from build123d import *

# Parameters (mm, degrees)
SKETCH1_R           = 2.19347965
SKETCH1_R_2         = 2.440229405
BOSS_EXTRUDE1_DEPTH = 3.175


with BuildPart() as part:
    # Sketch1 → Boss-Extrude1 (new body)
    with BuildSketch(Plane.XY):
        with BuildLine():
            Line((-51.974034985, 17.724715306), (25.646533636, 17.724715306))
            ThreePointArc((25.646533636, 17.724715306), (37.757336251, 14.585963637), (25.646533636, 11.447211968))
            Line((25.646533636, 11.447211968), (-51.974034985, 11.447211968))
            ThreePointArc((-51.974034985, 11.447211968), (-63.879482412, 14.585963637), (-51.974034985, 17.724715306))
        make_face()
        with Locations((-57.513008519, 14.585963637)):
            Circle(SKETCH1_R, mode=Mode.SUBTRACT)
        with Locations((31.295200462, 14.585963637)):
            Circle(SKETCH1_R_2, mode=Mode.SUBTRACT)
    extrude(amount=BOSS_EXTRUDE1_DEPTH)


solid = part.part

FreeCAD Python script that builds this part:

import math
import FreeCAD as App
import Part
import Sketcher
from FreeCAD import Vector
Q = App.Units.Quantity

doc = App.newDocument("Part")
body = doc.addObject("PartDesign::Body", "Body")

# Sketch on XY plane
sketch1 = body.newObject("Sketcher::SketchObject", "Sketch")
sketch1.AttachmentSupport = (doc.getObject("XY_Plane"), [""])
sketch1.MapMode = "FlatFace"
sketch1.addGeometry(Part.LineSegment(Vector(25.6, 17.7, 0), Vector(-52, 17.7, 0)), False)
sketch1.addGeometry(Part.ArcOfCircle(Part.Circle(Vector(-57.5, 14.6, 0), Vector(0, 0, 1), 6.4), math.radians(30), math.radians(330)), False)
sketch1.addGeometry(Part.LineSegment(Vector(-52, 11.4, 0), Vector(25.6, 11.4, 0)), False)
sketch1.addGeometry(Part.ArcOfCircle(Part.Circle(Vector(31.3, 14.6, 0), Vector(0, 0, 1), 6.5), math.radians(-151), math.radians(151)), False)
sketch1.addGeometry(Part.Circle(Vector(31.3, 14.6, 0), Vector(0, 0, 1), 2.4), False)
sketch1.addGeometry(Part.Circle(Vector(-57.5, 14.6, 0), Vector(0, 0, 1), 2.2), False)
sketch1.addConstraint(Sketcher.Constraint("Coincident", 0, 2, 1, 1))
sketch1.addConstraint(Sketcher.Constraint("Coincident", 1, 2, 2, 1))
sketch1.addConstraint(Sketcher.Constraint("Coincident", 2, 2, 3, 1))
sketch1.addConstraint(Sketcher.Constraint("Coincident", 3, 2, 0, 1))
sketch1.addConstraint(Sketcher.Constraint("Horizontal", 0))
sketch1.addConstraint(Sketcher.Constraint("Horizontal", 2))
sketch1.addConstraint(Sketcher.Constraint("Coincident", 4, 3, 3, 3))
sketch1.addConstraint(Sketcher.Constraint("Coincident", 5, 3, 1, 3))
sketch1.addConstraint(Sketcher.Constraint("Horizontal", 1, 3, 3, 3))
sketch1.addConstraint(Sketcher.Constraint("Vertical", 0, 2, 1, 2))
sketch1.addConstraint(Sketcher.Constraint("Diameter", 4, Q("4.880459 mm")))
sketch1.addConstraint(Sketcher.Constraint("Diameter", 5, Q("4.386959 mm")))
sketch1.addConstraint(Sketcher.Constraint("Radius", 1, Q("6.366474 mm")))
sketch1.addConstraint(Sketcher.Constraint("Radius", 3, Q("6.462136 mm")))
sketch1.addConstraint(Sketcher.Constraint("DistanceX", 0, 2, 0, 1, Q("77.620569 mm")))
sketch1.addConstraint(Sketcher.Constraint("DistanceX", -1, 1, 3, 3, Q("31.2952 mm")))
sketch1.addConstraint(Sketcher.Constraint("DistanceX", 1, 3, -1, 1, Q("57.513009 mm")))
sketch1.addConstraint(Sketcher.Constraint("DistanceY", -1, 1, 1, 2, Q("11.447212 mm")))
pad1 = body.newObject("PartDesign::Pad", "Pad")
pad1.Profile = sketch1
pad1.Length = Q("0.125 in")

doc.recompute()
